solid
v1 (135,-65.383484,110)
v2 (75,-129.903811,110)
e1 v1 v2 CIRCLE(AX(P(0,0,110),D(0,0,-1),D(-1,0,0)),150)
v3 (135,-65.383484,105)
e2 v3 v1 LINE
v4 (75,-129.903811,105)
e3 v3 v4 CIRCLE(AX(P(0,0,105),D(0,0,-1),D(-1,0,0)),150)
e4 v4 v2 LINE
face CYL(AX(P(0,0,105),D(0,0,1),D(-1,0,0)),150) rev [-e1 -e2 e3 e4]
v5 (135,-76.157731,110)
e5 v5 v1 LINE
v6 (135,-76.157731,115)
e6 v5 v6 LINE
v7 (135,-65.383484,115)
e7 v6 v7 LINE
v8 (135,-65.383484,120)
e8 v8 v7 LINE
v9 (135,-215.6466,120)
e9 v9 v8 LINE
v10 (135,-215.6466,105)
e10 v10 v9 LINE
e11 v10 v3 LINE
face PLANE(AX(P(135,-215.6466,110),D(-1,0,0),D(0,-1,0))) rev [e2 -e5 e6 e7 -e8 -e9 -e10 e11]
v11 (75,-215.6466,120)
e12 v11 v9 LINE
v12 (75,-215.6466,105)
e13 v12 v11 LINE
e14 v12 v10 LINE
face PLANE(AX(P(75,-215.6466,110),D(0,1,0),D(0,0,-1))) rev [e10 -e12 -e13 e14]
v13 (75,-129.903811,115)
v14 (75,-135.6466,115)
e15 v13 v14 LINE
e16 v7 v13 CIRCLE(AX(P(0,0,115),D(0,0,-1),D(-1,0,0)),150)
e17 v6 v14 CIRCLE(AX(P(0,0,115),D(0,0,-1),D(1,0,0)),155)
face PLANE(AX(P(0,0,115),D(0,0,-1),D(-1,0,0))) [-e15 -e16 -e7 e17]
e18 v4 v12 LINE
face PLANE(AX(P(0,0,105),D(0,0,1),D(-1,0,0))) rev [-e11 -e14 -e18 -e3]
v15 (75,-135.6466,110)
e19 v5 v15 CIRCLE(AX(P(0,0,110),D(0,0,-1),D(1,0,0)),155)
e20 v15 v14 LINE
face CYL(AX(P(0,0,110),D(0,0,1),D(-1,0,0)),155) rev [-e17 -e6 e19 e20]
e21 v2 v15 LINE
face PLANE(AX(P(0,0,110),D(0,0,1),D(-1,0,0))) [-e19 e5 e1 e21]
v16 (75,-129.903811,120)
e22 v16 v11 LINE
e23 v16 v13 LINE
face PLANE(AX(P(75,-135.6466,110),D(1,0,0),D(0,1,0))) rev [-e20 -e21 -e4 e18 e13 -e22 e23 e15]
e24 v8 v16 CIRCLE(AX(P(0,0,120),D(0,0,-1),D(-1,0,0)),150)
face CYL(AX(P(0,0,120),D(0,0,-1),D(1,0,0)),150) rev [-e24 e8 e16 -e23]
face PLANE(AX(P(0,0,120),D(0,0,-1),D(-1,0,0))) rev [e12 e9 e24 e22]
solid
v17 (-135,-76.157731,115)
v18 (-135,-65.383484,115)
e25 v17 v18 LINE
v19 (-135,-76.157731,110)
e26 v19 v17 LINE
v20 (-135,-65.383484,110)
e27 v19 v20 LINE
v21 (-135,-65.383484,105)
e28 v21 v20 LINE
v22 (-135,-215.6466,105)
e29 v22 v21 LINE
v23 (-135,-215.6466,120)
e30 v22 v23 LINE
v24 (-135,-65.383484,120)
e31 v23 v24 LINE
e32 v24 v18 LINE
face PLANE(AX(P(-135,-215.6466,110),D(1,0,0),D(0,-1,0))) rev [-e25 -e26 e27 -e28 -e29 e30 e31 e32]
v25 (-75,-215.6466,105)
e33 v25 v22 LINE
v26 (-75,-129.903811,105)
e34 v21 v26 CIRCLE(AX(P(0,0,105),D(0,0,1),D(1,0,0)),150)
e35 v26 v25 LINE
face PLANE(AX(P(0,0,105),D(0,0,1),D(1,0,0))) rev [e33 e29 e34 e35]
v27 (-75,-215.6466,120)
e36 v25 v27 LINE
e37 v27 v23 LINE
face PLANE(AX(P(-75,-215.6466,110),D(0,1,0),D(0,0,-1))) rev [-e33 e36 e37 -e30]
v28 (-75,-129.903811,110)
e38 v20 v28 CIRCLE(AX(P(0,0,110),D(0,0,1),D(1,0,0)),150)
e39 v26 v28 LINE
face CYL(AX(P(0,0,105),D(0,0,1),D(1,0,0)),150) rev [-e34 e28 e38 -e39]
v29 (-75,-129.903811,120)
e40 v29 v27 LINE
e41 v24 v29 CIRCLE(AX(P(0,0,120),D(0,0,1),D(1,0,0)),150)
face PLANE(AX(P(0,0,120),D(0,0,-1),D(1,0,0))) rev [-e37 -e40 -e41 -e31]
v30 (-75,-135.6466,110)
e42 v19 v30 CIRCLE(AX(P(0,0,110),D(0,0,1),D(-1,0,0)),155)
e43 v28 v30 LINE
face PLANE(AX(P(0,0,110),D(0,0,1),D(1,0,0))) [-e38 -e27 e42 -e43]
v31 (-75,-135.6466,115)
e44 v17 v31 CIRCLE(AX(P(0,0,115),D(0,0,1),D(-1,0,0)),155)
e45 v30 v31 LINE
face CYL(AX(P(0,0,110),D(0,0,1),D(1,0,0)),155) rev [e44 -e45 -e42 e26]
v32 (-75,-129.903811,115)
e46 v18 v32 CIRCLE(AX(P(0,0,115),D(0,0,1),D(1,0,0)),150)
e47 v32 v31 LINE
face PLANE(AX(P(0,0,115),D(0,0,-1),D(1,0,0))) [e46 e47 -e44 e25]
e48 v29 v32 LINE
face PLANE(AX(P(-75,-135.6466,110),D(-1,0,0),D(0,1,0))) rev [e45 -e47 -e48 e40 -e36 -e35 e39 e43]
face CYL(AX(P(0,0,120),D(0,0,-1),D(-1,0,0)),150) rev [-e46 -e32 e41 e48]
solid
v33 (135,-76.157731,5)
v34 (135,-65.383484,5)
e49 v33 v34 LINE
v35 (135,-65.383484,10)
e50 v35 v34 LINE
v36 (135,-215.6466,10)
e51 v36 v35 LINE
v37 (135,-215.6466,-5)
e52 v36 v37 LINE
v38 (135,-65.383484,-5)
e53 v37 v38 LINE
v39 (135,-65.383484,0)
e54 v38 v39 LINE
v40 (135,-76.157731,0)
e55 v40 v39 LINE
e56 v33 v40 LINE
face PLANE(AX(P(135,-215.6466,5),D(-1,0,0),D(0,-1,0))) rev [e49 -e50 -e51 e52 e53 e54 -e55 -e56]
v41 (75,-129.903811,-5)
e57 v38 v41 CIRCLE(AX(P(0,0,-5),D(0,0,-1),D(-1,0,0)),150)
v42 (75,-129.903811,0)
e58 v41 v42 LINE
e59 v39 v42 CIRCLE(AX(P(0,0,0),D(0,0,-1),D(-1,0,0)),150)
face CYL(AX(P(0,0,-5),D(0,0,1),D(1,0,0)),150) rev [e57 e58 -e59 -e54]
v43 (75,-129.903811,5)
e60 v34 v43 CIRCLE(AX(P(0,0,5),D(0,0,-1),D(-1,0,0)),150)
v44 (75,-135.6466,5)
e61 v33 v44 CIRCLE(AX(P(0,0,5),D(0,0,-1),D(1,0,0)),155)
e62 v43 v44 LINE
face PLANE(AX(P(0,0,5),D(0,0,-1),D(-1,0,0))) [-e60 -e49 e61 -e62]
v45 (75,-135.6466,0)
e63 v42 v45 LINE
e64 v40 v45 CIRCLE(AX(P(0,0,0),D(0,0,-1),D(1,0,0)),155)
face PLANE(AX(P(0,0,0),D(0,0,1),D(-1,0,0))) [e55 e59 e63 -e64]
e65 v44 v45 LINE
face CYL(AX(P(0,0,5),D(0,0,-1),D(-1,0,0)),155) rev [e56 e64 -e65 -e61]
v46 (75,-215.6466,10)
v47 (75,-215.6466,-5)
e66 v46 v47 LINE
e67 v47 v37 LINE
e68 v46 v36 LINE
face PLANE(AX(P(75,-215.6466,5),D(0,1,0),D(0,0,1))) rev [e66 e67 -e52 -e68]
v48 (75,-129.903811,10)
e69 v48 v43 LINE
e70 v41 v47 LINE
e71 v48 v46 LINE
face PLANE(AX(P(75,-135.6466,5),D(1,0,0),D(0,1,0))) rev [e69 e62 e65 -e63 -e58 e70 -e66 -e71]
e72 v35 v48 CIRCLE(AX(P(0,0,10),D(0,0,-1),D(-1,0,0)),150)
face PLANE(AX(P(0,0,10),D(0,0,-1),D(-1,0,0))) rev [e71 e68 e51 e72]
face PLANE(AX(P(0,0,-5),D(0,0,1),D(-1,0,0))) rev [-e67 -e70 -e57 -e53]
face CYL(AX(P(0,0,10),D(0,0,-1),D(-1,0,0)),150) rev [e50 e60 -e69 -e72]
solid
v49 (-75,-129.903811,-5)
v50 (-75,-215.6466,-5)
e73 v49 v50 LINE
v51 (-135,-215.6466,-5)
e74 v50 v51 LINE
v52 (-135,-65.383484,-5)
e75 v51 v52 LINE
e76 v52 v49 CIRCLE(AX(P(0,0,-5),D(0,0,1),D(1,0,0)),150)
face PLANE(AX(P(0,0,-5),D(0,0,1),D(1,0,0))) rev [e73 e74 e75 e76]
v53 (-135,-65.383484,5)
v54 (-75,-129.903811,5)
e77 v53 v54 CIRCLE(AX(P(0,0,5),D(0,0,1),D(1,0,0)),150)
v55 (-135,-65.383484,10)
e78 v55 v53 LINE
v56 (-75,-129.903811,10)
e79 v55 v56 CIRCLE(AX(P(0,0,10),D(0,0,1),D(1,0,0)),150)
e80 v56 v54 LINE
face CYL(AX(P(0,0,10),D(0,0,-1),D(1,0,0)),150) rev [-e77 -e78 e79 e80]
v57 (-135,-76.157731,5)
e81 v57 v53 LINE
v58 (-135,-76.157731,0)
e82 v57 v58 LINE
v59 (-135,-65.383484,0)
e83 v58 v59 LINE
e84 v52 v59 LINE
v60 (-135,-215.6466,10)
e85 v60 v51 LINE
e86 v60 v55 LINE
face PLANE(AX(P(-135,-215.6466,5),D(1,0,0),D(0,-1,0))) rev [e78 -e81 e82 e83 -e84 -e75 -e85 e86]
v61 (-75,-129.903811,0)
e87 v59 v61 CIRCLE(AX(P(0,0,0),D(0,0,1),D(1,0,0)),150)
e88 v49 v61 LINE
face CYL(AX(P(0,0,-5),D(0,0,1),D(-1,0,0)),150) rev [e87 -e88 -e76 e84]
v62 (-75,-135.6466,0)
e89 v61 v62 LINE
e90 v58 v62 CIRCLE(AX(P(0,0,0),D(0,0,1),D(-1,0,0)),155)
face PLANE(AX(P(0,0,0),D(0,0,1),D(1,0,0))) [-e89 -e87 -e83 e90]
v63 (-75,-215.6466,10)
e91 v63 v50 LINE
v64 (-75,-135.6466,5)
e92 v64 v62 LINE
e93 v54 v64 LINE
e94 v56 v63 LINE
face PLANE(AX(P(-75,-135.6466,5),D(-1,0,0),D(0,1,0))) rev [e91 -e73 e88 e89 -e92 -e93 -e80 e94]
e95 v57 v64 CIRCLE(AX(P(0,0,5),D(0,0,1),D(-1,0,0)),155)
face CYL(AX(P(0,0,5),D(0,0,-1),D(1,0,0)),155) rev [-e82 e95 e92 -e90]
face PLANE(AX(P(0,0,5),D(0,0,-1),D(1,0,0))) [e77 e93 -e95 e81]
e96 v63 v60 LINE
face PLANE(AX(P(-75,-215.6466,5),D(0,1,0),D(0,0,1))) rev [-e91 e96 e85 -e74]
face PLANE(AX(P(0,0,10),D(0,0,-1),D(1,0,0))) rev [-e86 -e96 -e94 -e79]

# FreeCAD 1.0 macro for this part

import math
import FreeCAD as App
import Part
import Sketcher

doc = App.newDocument("Part")
body = doc.addObject("PartDesign::Body", "Body")

sketch1 = doc.addObject("Sketcher::SketchObject", "Sketch")
body.addObject(sketch1)
sketch1.AttachmentSupport = (doc.XY_Plane, [""])
sketch1.MapMode = "FlatFace"
sketch1.AttachmentOffset = App.Placement(App.Vector(0, 0, 2.5), App.Rotation())
sketch1.addGeometry([
    Part.LineSegment(App.Vector(75, -135.6466, 0), App.Vector(75, -215.6466, 0)),
    Part.LineSegment(App.Vector(75, -215.6466, 0), App.Vector(135, -215.6466, 0)),
    Part.LineSegment(App.Vector(135, -215.6466, 0), App.Vector(135, -76.157731, 0)),
    Part.ArcOfCircle(Part.Circle(App.Vector(0, 0, 0), App.Vector(0, 0, 1), 155), math.radians(-61.061472), math.radians(-29.428707)),
], False)
sketch1.addConstraint([
    Sketcher.Constraint("Coincident", 0, 2, 1, 1),
    Sketcher.Constraint("Coincident", 1, 2, 2, 1),
    Sketcher.Constraint("Coincident", 2, 2, 3, 2),
    Sketcher.Constraint("Coincident", 3, 1, 0, 1),
    Sketcher.Constraint("Vertical", 0),
    Sketcher.Constraint("Horizontal", 1),
    Sketcher.Constraint("Vertical", 2),
    Sketcher.Constraint("Coincident", 3, 3, -1, 1),
    Sketcher.Constraint("Radius", 3, 155.0),
    Sketcher.Constraint("DistanceX", 1, 1, 1, 2, 60.0),
    Sketcher.Constraint("DistanceY", 0, 2, 0, 1, 80.0),
    Sketcher.Constraint("DistanceX", -1, 1, 0, 2, 75.0),
])
pad1 = doc.addObject("PartDesign::Pad", "Pad")
body.addObject(pad1)
pad1.Profile = sketch1
pad1.Length = 5
pad1.Midplane = True

sketch2 = doc.addObject("Sketcher::SketchObject", "Sketch001")
body.addObject(sketch2)
sketch2.AttachmentSupport = (doc.XY_Plane, [""])
sketch2.MapMode = "FlatFace"
sketch2.AttachmentOffset = App.Placement(App.Vector(0, 0, 5), App.Rotation())
sketch2.addGeometry([
    Part.LineSegment(App.Vector(75, -215.6466, 0), App.Vector(135, -215.6466, 0)),
    Part.LineSegment(App.Vector(135, -215.6466, 0), App.Vector(135, -65.383484, 0)),
    Part.ArcOfCircle(Part.Circle(App.Vector(0, 0, 0), App.Vector(0, 0, 1), 150), math.radians(-60), math.radians(-25.841933)),
    Part.LineSegment(App.Vector(75, -129.903811, 0), App.Vector(75, -215.6466, 0)),
], False)
sketch2.addConstraint([
    Sketcher.Constraint("Coincident", 0, 2, 1, 1),
    Sketcher.Constraint("Coincident", 1, 2, 2, 2),
    Sketcher.Constraint("Coincident", 2, 1, 3, 1),
    Sketcher.Constraint("Coincident", 3, 2, 0, 1),
    Sketcher.Constraint("Horizontal", 0),
    Sketcher.Constraint("Vertical", 1),
    Sketcher.Constraint("Vertical", 3),
    Sketcher.Constraint("Coincident", 2, 3, -1, 1),
    Sketcher.Constraint("Radius", 2, 150.0),
    Sketcher.Constraint("DistanceX", 0, 1, 0, 2, 60.0),
    Sketcher.Constraint("DistanceX", -1, 1, 0, 2, 135.0),
    Sketcher.Constraint("DistanceY", 3, 2, 3, 1, 85.742789),
])
pad2 = doc.addObject("PartDesign::Pad", "Pad001")
body.addObject(pad2)
pad2.Profile = sketch2
pad2.Length = 5
doc.recompute()

datumplane = doc.addObject("PartDesign::Plane", "DatumPlane")
body.addObject(datumplane)
datumplane.AttachmentSupport = (doc.XY_Plane, [""])
datumplane.MapMode = "FlatFace"
datumplane.AttachmentOffset = App.Placement(App.Vector(0, 0, 2.5), App.Rotation())
mirrored = doc.addObject("PartDesign::Mirrored", "Mirrored")
body.addObject(mirrored)
mirrored.Originals = [pad2]
mirrored.MirrorPlane = (datumplane, [""])
body.Tip = mirrored
body2 = doc.addObject("PartDesign::Body", "Body001")
doc.recompute()

mirroring = doc.addObject("Part::Mirroring", "Mirroring")
mirroring.Source = body
mirroring.Base = App.Vector(0, 0, 0)
mirroring.Normal = App.Vector(1, 0, 0)
body2.BaseFeature = mirroring
doc.recompute()
body3 = doc.addObject("PartDesign::Body", "Body002")
doc.recompute()

mirroring2 = doc.addObject("Part::Mirroring", "Mirroring001")
mirroring2.Source = body
mirroring2.Base = App.Vector(0, 0, 57.5)
mirroring2.Normal = App.Vector(0, 0, 1)
body3.BaseFeature = mirroring2
doc.recompute()
body4 = doc.addObject("PartDesign::Body", "Body003")
doc.recompute()

mirroring3 = doc.addObject("Part::Mirroring", "Mirroring002")
mirroring3.Source = body2
mirroring3.Base = App.Vector(0, 0, 57.5)
mirroring3.Normal = App.Vector(0, 0, 1)
body4.BaseFeature = mirroring3
doc.recompute()
mirroring.Visibility = False
mirroring2.Visibility = False
mirroring3.Visibility = False

doc.recompute()
